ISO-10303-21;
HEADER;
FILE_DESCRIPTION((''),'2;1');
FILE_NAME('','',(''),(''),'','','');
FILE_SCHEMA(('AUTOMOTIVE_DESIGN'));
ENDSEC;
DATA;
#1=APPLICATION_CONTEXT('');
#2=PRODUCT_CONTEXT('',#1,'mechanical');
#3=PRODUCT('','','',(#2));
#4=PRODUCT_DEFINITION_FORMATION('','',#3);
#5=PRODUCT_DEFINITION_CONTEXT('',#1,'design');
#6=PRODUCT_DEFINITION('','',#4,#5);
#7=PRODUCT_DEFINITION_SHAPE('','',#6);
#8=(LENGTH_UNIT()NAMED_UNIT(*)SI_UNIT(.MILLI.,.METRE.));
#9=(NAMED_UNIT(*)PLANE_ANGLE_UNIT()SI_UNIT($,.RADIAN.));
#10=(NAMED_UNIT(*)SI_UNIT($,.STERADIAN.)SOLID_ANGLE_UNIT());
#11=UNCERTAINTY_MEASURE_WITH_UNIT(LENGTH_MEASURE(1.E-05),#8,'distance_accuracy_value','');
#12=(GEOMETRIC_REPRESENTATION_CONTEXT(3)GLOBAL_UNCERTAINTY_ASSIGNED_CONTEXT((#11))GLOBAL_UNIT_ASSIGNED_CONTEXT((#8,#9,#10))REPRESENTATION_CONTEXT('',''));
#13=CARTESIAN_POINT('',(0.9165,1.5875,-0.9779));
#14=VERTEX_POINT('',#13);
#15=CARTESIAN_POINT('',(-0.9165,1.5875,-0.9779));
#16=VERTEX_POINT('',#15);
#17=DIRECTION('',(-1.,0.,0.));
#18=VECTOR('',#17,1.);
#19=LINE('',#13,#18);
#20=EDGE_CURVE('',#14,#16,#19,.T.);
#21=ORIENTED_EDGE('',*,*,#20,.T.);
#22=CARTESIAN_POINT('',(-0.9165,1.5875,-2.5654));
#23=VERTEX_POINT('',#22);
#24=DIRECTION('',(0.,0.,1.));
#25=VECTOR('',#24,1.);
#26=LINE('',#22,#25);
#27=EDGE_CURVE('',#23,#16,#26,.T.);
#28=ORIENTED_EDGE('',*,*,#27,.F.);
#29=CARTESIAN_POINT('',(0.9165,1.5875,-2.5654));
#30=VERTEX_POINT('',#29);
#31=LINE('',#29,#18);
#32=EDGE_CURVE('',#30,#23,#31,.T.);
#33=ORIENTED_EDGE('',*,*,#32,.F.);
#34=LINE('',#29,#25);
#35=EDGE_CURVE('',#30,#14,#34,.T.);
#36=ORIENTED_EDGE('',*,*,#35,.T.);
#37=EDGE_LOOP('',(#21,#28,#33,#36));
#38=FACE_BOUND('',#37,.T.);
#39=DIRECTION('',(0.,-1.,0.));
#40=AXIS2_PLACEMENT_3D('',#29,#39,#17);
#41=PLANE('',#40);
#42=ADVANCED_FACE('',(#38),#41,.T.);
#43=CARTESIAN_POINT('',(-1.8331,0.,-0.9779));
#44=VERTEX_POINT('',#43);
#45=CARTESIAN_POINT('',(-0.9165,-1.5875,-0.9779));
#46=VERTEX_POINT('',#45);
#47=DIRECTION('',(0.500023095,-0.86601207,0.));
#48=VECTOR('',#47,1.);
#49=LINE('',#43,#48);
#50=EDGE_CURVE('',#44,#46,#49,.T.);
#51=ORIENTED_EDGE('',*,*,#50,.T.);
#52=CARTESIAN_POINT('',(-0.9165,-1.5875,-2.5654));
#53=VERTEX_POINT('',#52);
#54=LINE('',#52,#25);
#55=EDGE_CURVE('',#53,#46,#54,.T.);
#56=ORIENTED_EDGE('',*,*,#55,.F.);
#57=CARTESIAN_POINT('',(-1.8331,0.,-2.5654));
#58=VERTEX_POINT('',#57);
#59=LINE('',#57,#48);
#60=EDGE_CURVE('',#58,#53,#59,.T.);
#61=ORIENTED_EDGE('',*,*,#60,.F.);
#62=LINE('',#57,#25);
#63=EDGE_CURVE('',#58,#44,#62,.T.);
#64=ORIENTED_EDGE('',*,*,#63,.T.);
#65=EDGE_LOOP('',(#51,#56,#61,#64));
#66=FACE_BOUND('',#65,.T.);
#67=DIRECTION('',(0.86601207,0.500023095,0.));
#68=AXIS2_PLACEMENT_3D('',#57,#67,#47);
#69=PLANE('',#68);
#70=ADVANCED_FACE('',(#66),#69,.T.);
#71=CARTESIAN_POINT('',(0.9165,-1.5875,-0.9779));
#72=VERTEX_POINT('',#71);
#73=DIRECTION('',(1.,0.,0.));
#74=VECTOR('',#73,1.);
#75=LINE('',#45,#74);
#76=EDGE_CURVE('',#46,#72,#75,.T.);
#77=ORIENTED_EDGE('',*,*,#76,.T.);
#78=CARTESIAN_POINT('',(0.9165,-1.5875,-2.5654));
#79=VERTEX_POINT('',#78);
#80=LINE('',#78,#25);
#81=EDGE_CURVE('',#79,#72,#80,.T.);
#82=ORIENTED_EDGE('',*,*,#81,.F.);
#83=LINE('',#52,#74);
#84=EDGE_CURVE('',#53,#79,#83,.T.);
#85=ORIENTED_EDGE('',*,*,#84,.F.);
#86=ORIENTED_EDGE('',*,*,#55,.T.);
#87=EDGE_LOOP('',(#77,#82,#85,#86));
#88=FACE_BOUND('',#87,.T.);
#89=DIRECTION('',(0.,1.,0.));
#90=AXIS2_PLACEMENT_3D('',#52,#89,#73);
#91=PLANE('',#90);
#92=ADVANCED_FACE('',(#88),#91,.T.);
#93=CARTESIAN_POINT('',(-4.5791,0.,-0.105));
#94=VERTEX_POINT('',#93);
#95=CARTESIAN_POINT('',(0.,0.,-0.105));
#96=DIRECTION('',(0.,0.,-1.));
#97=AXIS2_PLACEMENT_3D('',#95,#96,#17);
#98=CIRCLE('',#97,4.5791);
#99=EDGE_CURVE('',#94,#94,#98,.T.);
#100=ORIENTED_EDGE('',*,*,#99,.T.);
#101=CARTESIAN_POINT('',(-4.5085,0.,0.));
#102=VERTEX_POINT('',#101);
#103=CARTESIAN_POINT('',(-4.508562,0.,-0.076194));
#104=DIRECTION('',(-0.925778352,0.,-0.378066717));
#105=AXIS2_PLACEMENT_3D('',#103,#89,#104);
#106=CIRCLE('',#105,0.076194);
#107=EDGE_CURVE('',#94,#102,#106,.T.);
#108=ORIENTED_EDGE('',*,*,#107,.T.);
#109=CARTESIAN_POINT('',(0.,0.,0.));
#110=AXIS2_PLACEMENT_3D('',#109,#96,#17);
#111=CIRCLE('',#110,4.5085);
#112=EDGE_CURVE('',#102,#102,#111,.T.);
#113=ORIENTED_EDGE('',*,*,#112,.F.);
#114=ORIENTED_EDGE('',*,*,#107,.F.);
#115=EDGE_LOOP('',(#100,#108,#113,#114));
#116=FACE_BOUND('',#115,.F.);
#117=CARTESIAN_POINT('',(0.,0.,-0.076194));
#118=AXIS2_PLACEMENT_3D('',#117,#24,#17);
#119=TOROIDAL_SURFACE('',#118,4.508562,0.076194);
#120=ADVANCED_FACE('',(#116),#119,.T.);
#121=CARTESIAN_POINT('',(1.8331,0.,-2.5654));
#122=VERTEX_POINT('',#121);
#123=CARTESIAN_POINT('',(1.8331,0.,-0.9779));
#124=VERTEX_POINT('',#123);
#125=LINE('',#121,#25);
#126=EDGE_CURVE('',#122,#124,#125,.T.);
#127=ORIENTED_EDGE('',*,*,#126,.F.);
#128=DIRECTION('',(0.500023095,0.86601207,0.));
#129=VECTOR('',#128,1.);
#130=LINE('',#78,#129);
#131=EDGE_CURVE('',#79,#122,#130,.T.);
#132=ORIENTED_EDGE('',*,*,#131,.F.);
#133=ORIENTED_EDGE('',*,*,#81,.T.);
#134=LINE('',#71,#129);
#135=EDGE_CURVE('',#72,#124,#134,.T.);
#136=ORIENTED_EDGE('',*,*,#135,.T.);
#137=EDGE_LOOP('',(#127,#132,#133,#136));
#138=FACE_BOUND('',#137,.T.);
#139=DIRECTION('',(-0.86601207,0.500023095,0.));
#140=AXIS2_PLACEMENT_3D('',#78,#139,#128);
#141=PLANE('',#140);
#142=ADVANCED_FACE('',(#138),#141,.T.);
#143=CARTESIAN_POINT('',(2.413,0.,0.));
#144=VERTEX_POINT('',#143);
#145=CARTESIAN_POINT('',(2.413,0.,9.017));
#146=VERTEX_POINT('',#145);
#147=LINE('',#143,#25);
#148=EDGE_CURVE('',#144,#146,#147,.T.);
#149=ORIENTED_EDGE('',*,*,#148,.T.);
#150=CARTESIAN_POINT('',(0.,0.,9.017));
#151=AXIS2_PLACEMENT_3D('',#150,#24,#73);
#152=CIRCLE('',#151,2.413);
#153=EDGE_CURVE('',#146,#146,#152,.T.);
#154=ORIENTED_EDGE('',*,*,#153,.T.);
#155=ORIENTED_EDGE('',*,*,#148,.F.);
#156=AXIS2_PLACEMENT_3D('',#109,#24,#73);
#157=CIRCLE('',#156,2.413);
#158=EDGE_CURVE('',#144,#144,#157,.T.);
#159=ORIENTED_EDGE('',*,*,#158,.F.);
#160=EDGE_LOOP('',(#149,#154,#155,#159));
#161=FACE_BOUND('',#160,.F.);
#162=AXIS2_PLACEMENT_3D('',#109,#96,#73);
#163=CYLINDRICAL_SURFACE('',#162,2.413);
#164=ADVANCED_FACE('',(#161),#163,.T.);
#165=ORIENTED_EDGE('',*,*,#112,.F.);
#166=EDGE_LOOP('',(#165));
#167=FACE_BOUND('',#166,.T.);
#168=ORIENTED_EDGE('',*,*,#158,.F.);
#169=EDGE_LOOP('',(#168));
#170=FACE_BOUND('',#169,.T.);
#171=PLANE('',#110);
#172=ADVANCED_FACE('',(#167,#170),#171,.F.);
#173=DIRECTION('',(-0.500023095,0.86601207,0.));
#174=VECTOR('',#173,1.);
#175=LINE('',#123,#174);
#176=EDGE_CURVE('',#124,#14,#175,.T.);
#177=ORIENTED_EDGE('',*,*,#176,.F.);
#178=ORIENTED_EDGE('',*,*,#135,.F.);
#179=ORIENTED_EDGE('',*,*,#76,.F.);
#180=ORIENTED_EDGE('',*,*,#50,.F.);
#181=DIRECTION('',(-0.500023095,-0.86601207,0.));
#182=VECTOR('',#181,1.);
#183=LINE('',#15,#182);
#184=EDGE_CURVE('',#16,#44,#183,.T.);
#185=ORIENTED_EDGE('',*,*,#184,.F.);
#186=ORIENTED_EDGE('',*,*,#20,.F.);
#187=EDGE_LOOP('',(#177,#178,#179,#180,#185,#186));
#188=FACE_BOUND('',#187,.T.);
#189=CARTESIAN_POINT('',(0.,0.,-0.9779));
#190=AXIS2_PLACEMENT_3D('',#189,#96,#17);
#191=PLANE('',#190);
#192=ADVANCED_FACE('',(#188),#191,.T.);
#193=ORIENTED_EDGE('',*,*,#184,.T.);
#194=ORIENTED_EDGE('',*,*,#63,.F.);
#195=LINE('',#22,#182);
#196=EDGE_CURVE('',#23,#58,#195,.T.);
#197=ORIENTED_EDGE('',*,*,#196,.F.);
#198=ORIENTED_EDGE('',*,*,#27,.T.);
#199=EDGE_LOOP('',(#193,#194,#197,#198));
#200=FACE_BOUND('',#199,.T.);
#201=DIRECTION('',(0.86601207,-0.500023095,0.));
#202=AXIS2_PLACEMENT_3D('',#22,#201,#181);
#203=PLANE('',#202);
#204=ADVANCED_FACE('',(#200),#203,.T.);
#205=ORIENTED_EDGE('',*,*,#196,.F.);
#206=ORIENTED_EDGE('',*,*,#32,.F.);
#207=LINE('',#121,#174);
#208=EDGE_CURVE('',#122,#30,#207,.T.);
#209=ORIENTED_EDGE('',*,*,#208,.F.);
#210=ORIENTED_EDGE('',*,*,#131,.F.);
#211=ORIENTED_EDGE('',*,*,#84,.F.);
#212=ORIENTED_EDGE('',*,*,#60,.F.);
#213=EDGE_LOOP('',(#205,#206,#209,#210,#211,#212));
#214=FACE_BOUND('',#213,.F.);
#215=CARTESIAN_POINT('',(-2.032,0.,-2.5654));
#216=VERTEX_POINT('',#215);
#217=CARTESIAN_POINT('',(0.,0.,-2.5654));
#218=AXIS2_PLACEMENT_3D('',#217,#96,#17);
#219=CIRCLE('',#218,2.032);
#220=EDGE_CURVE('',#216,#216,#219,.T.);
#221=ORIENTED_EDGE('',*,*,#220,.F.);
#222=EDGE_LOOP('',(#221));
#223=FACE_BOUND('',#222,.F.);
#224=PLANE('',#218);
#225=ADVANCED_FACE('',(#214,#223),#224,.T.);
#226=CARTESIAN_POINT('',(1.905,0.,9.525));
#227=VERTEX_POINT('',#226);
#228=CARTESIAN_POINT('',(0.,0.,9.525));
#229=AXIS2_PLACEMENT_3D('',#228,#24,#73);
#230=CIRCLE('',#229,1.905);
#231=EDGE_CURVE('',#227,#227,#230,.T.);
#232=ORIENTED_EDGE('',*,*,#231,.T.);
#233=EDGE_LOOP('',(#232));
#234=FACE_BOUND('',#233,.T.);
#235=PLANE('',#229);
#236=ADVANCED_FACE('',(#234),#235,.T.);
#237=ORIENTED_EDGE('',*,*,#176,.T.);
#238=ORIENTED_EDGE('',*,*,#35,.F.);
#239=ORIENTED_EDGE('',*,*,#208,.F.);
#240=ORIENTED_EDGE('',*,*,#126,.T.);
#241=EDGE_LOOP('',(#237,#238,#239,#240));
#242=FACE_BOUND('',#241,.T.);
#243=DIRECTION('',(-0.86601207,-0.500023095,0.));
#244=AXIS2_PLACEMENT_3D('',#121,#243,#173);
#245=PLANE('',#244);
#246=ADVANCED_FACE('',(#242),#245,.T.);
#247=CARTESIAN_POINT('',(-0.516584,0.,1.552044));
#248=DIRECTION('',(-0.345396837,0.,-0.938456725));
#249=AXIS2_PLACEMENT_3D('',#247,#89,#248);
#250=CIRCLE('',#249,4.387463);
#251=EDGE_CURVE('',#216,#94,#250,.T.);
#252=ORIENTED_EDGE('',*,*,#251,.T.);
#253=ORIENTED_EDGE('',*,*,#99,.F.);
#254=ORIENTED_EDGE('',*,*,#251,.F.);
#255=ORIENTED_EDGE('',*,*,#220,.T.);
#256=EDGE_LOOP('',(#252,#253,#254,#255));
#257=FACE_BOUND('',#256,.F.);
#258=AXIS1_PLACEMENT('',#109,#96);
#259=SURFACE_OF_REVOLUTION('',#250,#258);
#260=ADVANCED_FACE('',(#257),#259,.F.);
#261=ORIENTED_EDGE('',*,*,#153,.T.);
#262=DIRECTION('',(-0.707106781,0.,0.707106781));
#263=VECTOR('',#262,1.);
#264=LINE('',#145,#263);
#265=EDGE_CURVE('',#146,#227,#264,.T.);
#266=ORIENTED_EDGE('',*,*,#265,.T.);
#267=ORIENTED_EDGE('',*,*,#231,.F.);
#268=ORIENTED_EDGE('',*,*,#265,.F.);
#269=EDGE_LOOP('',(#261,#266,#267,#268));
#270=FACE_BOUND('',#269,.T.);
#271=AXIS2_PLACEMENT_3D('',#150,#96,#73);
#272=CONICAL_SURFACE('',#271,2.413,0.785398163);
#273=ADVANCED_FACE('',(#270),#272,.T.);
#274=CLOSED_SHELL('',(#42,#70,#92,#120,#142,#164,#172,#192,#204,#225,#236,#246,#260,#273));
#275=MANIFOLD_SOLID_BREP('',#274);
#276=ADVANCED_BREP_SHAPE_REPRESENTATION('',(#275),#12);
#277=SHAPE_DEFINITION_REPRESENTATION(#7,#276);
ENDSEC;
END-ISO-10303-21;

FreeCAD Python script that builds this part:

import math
import FreeCAD as App
import Part
import Sketcher

V = App.Vector
Q = App.Units.Quantity


def edges_at(feature, points):
    """Names of the edges that pass closest to the given points."""
    edges = feature.Shape.Edges
    near = lambda p: min(range(len(edges)), key=lambda i: edges[i].distToShape(Part.Vertex(*p))[0])
    return sorted({f"Edge{near(p) + 1}" for p in points})


def add_polygon(sketch, points):
    """Adds a closed chain of lines whose ends are joined by coincident constraints."""
    first, n = sketch.GeometryCount, len(points)
    for a, b in zip(points, points[1:] + points[:1]):
        sketch.addGeometry(Part.LineSegment(App.Vector(*a, 0), App.Vector(*b, 0)), False)
    for i in range(n):
        sketch.addConstraint(Sketcher.Constraint("Coincident", first + i, 2, first + (i + 1) % n, 1))

doc = App.newDocument("Part")
body = doc.addObject("PartDesign::Body", "Body")

# Sketch on XY plane
sketch1 = body.newObject("Sketcher::SketchObject", "Sketch")
sketch1.AttachmentSupport = (doc.getObject("XY_Plane"), [""])
sketch1.MapMode = "FlatFace"
sketch1.addGeometry(Part.Circle(V(0, 0, 0), V(0, 0, 1), 2.4), False)
sketch1.addConstraint(Sketcher.Constraint("Coincident", 0, 3, -1, 1))
sketch1.addConstraint(Sketcher.Constraint("Diameter", 0, Q("0.19 in")))
pad1 = body.newObject("PartDesign::Pad", "Pad")
pad1.Profile = sketch1
pad1.Length = Q("0.375 in")

# Sketch on XZ plane
sketch2 = body.newObject("Sketcher::SketchObject", "Sketch001")
sketch2.AttachmentSupport = (doc.getObject("XZ_Plane"), [""])
sketch2.MapMode = "FlatFace"
sketch2.addGeometry(Part.LineSegment(V(-4.51, 0, 0), V(0, 0, 0)), False)
sketch2.addGeometry(Part.LineSegment(V(0, 0, 0), V(0, -2.57, 0)), False)
sketch2.addGeometry(Part.LineSegment(V(0, -2.57, 0), V(-2.03, -2.57, 0)), False)
sketch2.addGeometry(Part.ArcOfCircle(Part.Circle(V(-0.52, 1.55, 0), V(0, 0, 1), 4.39), math.radians(-158), math.radians(-110)), False)
sketch2.addGeometry(Part.ArcOfCircle(Part.Circle(V(-4.51, -0.08, 0), V(0, 0, 1), 0.08), math.radians(90), math.radians(202)), False)
sketch2.addConstraint(Sketcher.Constraint("Coincident", 0, 2, 1, 1))
sketch2.addConstraint(Sketcher.Constraint("Coincident", 1, 2, 2, 1))
sketch2.addConstraint(Sketcher.Constraint("Coincident", 2, 2, 3, 2))
sketch2.addConstraint(Sketcher.Constraint("Tangent", 3, 1, 4, 2))
sketch2.addConstraint(Sketcher.Constraint("Tangent", 4, 1, 0, 1))
sketch2.addConstraint(Sketcher.Constraint("Horizontal", 0))
sketch2.addConstraint(Sketcher.Constraint("Vertical", 1))
sketch2.addConstraint(Sketcher.Constraint("Horizontal", 2))
sketch2.addConstraint(Sketcher.Constraint("Coincident", 0, 2, -1, 1))
sketch2.addConstraint(Sketcher.Constraint("Radius", 4, Q("0.003 in")))
sketch2.addConstraint(Sketcher.Constraint("DistanceX", 2, 2, 2, 1, Q("0.08 in")))
sketch2.addConstraint(Sketcher.Constraint("DistanceY", 1, 2, 1, 1, Q("0.101 in")))
sketch2.addConstraint(Sketcher.Constraint("Radius", 3, Q("4.387 mm")))
sketch2.addConstraint(Sketcher.Constraint("DistanceX", 0, 1, 0, 2, Q("0.1775 in")))
revolution = body.newObject("PartDesign::Revolution", "Revolution")
revolution.Profile = sketch2
revolution.ReferenceAxis = (sketch2, ["V_Axis"])
revolution.Angle = 360

# Sketch on XY plane
sketch3 = body.newObject("Sketcher::SketchObject", "Sketch002")
sketch3.AttachmentSupport = (doc.getObject("XY_Plane"), [""])
sketch3.MapMode = "FlatFace"
sketch3.AttachmentOffset = App.Placement(V(0, 0, -0.101 * 25.4), App.Rotation())
add_polygon(sketch3, [(-0.9, 1.6), (0.9, 1.6), (1.8, 0), (0.9, -1.6), (-0.9, -1.6), (-1.8, 0)])  # lines 0-5
sketch3.addConstraint(Sketcher.Constraint("Horizontal", 0))
sketch3.addConstraint(Sketcher.Constraint("Horizontal", 3))
sketch3.addConstraint(Sketcher.Constraint("Symmetric", 0, 2, 3, 2, -1, 1))
sketch3.addConstraint(Sketcher.Constraint("Symmetric", 1, 2, 4, 2, -1, 1))
sketch3.addConstraint(Sketcher.Constraint("PointOnObject", 1, 2, -1))
sketch3.addConstraint(Sketcher.Constraint("Parallel", 2, 5))
sketch3.addConstraint(Sketcher.Constraint("Vertical", 0, 2, 2, 2))
sketch3.addConstraint(Sketcher.Constraint("DistanceY", 2, 2, 0, 2, Q("0.125 in")))
sketch3.addConstraint(Sketcher.Constraint("DistanceX", 0, 1, 0, 2, Q("1.833 mm")))
sketch3.addConstraint(Sketcher.Constraint("Distance", 1, Q("1.833 mm")))
pocket1 = body.newObject("PartDesign::Pocket", "Pocket")
pocket1.Profile = sketch3
pocket1.Length = Q("0.0625 in")
pocket1.Reversed = True
doc.recompute()

chamfer = body.newObject("PartDesign::Chamfer", "Chamfer")
chamfer.Base = (pocket1, edges_at(pocket1, [(-2.413, 0, 9.525)]))
chamfer.Size = Q("0.02 in")

doc.recompute()
